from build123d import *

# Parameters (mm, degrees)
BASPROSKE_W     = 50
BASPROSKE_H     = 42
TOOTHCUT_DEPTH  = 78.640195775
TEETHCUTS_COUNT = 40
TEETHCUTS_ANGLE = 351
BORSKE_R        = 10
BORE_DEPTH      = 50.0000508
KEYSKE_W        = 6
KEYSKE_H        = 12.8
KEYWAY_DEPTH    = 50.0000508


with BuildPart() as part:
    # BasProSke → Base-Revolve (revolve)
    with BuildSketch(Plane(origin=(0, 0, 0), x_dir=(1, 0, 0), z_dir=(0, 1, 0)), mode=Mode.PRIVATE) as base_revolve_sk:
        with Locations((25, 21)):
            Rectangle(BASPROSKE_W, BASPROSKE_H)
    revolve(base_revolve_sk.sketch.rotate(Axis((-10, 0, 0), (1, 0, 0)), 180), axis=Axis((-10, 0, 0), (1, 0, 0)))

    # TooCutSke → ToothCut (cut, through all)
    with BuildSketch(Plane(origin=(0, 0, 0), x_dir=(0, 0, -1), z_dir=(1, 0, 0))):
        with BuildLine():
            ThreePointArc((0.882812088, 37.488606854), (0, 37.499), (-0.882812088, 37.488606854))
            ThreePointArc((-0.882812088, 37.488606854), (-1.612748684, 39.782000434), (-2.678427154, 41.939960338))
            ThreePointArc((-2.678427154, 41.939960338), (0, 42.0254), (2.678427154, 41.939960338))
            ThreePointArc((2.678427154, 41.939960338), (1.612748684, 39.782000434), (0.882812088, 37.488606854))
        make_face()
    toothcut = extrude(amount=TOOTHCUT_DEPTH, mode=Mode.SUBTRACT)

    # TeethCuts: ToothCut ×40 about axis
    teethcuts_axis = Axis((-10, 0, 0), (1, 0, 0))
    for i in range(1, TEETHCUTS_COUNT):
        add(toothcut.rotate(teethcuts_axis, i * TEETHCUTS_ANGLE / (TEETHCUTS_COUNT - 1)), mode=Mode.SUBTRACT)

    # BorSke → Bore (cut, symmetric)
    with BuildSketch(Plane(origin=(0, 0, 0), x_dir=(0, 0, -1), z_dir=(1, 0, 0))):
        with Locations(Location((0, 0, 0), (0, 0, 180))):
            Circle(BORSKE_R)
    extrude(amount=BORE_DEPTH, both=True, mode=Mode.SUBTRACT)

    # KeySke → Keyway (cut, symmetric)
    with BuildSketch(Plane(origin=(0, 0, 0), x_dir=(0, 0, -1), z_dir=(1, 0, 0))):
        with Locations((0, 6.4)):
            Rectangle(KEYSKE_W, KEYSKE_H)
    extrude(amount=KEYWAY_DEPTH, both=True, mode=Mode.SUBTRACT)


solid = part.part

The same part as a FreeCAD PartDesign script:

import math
import FreeCAD as App
import Part
import Sketcher
from FreeCAD import Vector
Q = App.Units.Quantity

doc = App.newDocument("Part")
body = doc.addObject("PartDesign::Body", "Body")

# Sketch on XZ plane
sketch1 = body.newObject("Sketcher::SketchObject", "Sketch")
sketch1.AttachmentSupport = (doc.getObject("XZ_Plane"), [""])
sketch1.MapMode = "FlatFace"
sketch1.addGeometry(Part.LineSegment(Vector(0, -42, 0), Vector(0, 0, 0)), False)
sketch1.addGeometry(Part.LineSegment(Vector(0, 0, 0), Vector(50, 0, 0)), False)
sketch1.addGeometry(Part.LineSegment(Vector(50, 0, 0), Vector(50, -42, 0)), False)
sketch1.addGeometry(Part.LineSegment(Vector(50, -42, 0), Vector(0, -42, 0)), False)
sketch1.addConstraint(Sketcher.Constraint("Coincident", 0, 2, 1, 1))
sketch1.addConstraint(Sketcher.Constraint("Coincident", 1, 2, 2, 1))
sketch1.addConstraint(Sketcher.Constraint("Coincident", 2, 2, 3, 1))
sketch1.addConstraint(Sketcher.Constraint("Coincident", 3, 2, 0, 1))
sketch1.addConstraint(Sketcher.Constraint("Vertical", 0))
sketch1.addConstraint(Sketcher.Constraint("Horizontal", 1))
sketch1.addConstraint(Sketcher.Constraint("Vertical", 2))
sketch1.addConstraint(Sketcher.Constraint("Horizontal", 3))
sketch1.addConstraint(Sketcher.Constraint("Coincident", 0, 2, -1, 1))
sketch1.addConstraint(Sketcher.Constraint("DistanceX", 1, 1, 1, 2, Q("50 mm")))
sketch1.addConstraint(Sketcher.Constraint("DistanceY", 0, 1, 0, 2, Q("42 mm")))
revolution = body.newObject("PartDesign::Revolution", "Revolution")
revolution.Profile = sketch1
revolution.ReferenceAxis = (sketch1, ["H_Axis"])
revolution.Angle = 360

# Sketch on YZ plane
sketch2 = body.newObject("Sketcher::SketchObject", "Sketch001")
sketch2.AttachmentSupport = (doc.getObject("YZ_Plane"), [""])
sketch2.MapMode = "FlatFace"
sketch2.addGeometry(Part.ArcOfCircle(Part.Circle(Vector(-0.000002, 0, 0), Vector(0, 0, 1), 37.499002), math.radians(-1.348998), math.radians(1.348998)), False)
sketch2.addGeometry(Part.ArcOfCircle(Part.Circle(Vector(33.796459, -16.450986, 0), Vector(0, 0, 1), 16), math.radians(59.40483), math.radians(76.658223)), False)
sketch2.addGeometry(Part.ArcOfCircle(Part.Circle(Vector(0, 0, 0), Vector(0, 0, 1), 42.0254), math.radians(-3.654139), math.radians(3.654139)), False)
sketch2.addGeometry(Part.ArcOfCircle(Part.Circle(Vector(33.796459, 16.450986, 0), Vector(0, 0, 1), 16), math.radians(-76.658223), math.radians(-59.40483)), False)
sketch2.addConstraint(Sketcher.Constraint("Coincident", 0, 1, 1, 2))
sketch2.addConstraint(Sketcher.Constraint("Coincident", 1, 1, 2, 1))
sketch2.addConstraint(Sketcher.Constraint("Coincident", 2, 2, 3, 2))
sketch2.addConstraint(Sketcher.Constraint("Coincident", 3, 1, 0, 2))
sketch2.addConstraint(Sketcher.Constraint("Coincident", 0, 3, -1, 1))
sketch2.addConstraint(Sketcher.Constraint("Coincident", 2, 3, -1, 1))
sketch2.addConstraint(Sketcher.Constraint("Equal", 1, 3))
sketch2.addConstraint(Sketcher.Constraint("Symmetric", 1, 3, 3, 3, -1))
sketch2.addConstraint(Sketcher.Constraint("Radius", 1, Q("16 mm")))
sketch2.addConstraint(Sketcher.Constraint("Radius", 0, Q("37.499002 mm")))
sketch2.addConstraint(Sketcher.Constraint("Radius", 2, Q("42.0254 mm")))
sketch2.addConstraint(Sketcher.Constraint("DistanceY", 0, 1, 3, 3, Q("17.333798 mm")))
sketch2.addConstraint(Sketcher.Constraint("DistanceX", 1, 3, 1, 1, Q("8.143502 mm")))
pocket1 = body.newObject("PartDesign::Pocket", "Pocket")
pocket1.Profile = sketch2
pocket1.Type = "ThroughAll"
pocket1.Reversed = True
doc.recompute()

polarpattern = body.newObject("PartDesign::PolarPattern", "PolarPattern")
polarpattern.Originals = [pocket1]
polarpattern.Axis = (doc.getObject("X_Axis"), [""])
polarpattern.Angle = 360
polarpattern.Occurrences = 40
body.Tip = polarpattern

# Sketch on YZ plane
sketch3 = body.newObject("Sketcher::SketchObject", "Sketch002")
sketch3.AttachmentSupport = (doc.getObject("YZ_Plane"), [""])
sketch3.MapMode = "FlatFace"
sketch3.addGeometry(Part.Circle(Vector(0, 0, 0), Vector(0, 0, 1), 10), False)
sketch3.addConstraint(Sketcher.Constraint("Coincident", 0, 3, -1, 1))
sketch3.addConstraint(Sketcher.Constraint("Diameter", 0, Q("20 mm")))
pocket2 = body.newObject("PartDesign::Pocket", "Pocket001")
pocket2.Profile = sketch3
pocket2.Length = 100.000102
pocket2.Midplane = True

# Sketch on YZ plane
sketch4 = body.newObject("Sketcher::SketchObject", "Sketch003")
sketch4.AttachmentSupport = (doc.getObject("YZ_Plane"), [""])
sketch4.MapMode = "FlatFace"
sketch4.addGeometry(Part.LineSegment(Vector(12.8, 3, 0), Vector(0, 3, 0)), False)
sketch4.addGeometry(Part.LineSegment(Vector(0, 3, 0), Vector(0, -3, 0)), False)
sketch4.addGeometry(Part.LineSegment(Vector(0, -3, 0), Vector(12.8, -3, 0)), False)
sketch4.addGeometry(Part.LineSegment(Vector(12.8, -3, 0), Vector(12.8, 3, 0)), False)
sketch4.addConstraint(Sketcher.Constraint("Coincident", 0, 2, 1, 1))
sketch4.addConstraint(Sketcher.Constraint("Coincident", 1, 2, 2, 1))
sketch4.addConstraint(Sketcher.Constraint("Coincident", 2, 2, 3, 1))
sketch4.addConstraint(Sketcher.Constraint("Coincident", 3, 2, 0, 1))
sketch4.addConstraint(Sketcher.Constraint("Horizontal", 0))
sketch4.addConstraint(Sketcher.Constraint("Vertical", 1))
sketch4.addConstraint(Sketcher.Constraint("Horizontal", 2))
sketch4.addConstraint(Sketcher.Constraint("Vertical", 3))
sketch4.addConstraint(Sketcher.Constraint("Symmetric", 0, 2, 1, 2, -1, 1))
sketch4.addConstraint(Sketcher.Constraint("DistanceY", 1, 2, 1, 1, Q("6 mm")))
sketch4.addConstraint(Sketcher.Constraint("DistanceX", 0, 2, 0, 1, Q("12.8 mm")))
pocket3 = body.newObject("PartDesign::Pocket", "Pocket002")
pocket3.Profile = sketch4
pocket3.Length = 100.000102
pocket3.Midplane = True

doc.recompute()
